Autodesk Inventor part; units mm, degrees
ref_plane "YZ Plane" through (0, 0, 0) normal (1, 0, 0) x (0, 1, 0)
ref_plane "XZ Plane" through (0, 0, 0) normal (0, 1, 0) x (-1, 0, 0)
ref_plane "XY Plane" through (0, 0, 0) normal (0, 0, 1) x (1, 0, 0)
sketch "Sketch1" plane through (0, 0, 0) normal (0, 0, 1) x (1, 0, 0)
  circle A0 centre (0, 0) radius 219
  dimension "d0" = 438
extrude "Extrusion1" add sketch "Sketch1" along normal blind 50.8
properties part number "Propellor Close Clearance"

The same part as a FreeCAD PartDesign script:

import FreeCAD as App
import Part
import Sketcher
from FreeCAD import Vector
Q = App.Units.Quantity

doc = App.newDocument("Part")
params = doc.addObject("Spreadsheet::Sheet", "Params")
for row, (alias, value) in enumerate([
    ("pad1_length", "2 in"),
], start=1):
    params.set(f"A{row}", alias)
    params.set(f"B{row}", "=" + value)
    params.setAlias(f"B{row}", alias)

body = doc.addObject("PartDesign::Body", "Body")

# Sketch on XY plane
sketch1 = doc.addObject("Sketcher::SketchObject", "Sketch")
body.addObject(sketch1)
sketch1.AttachmentSupport = (doc.XY_Plane, [""])
sketch1.MapMode = "FlatFace"
sketch1.addGeometry(Part.Circle(Vector(0, 0, 0), Vector(0, 0, 1), 219), False)
sketch1.addConstraint([
    Sketcher.Constraint("Coincident", 0, 3, -1, 1),
    Sketcher.Constraint("Diameter", 0, Q("17.2441 in")),
])
pad1 = doc.addObject("PartDesign::Pad", "Pad")
body.addObject(pad1)
pad1.Profile = sketch1
pad1.setExpression("Length", "Params.pad1_length")

doc.recompute()
